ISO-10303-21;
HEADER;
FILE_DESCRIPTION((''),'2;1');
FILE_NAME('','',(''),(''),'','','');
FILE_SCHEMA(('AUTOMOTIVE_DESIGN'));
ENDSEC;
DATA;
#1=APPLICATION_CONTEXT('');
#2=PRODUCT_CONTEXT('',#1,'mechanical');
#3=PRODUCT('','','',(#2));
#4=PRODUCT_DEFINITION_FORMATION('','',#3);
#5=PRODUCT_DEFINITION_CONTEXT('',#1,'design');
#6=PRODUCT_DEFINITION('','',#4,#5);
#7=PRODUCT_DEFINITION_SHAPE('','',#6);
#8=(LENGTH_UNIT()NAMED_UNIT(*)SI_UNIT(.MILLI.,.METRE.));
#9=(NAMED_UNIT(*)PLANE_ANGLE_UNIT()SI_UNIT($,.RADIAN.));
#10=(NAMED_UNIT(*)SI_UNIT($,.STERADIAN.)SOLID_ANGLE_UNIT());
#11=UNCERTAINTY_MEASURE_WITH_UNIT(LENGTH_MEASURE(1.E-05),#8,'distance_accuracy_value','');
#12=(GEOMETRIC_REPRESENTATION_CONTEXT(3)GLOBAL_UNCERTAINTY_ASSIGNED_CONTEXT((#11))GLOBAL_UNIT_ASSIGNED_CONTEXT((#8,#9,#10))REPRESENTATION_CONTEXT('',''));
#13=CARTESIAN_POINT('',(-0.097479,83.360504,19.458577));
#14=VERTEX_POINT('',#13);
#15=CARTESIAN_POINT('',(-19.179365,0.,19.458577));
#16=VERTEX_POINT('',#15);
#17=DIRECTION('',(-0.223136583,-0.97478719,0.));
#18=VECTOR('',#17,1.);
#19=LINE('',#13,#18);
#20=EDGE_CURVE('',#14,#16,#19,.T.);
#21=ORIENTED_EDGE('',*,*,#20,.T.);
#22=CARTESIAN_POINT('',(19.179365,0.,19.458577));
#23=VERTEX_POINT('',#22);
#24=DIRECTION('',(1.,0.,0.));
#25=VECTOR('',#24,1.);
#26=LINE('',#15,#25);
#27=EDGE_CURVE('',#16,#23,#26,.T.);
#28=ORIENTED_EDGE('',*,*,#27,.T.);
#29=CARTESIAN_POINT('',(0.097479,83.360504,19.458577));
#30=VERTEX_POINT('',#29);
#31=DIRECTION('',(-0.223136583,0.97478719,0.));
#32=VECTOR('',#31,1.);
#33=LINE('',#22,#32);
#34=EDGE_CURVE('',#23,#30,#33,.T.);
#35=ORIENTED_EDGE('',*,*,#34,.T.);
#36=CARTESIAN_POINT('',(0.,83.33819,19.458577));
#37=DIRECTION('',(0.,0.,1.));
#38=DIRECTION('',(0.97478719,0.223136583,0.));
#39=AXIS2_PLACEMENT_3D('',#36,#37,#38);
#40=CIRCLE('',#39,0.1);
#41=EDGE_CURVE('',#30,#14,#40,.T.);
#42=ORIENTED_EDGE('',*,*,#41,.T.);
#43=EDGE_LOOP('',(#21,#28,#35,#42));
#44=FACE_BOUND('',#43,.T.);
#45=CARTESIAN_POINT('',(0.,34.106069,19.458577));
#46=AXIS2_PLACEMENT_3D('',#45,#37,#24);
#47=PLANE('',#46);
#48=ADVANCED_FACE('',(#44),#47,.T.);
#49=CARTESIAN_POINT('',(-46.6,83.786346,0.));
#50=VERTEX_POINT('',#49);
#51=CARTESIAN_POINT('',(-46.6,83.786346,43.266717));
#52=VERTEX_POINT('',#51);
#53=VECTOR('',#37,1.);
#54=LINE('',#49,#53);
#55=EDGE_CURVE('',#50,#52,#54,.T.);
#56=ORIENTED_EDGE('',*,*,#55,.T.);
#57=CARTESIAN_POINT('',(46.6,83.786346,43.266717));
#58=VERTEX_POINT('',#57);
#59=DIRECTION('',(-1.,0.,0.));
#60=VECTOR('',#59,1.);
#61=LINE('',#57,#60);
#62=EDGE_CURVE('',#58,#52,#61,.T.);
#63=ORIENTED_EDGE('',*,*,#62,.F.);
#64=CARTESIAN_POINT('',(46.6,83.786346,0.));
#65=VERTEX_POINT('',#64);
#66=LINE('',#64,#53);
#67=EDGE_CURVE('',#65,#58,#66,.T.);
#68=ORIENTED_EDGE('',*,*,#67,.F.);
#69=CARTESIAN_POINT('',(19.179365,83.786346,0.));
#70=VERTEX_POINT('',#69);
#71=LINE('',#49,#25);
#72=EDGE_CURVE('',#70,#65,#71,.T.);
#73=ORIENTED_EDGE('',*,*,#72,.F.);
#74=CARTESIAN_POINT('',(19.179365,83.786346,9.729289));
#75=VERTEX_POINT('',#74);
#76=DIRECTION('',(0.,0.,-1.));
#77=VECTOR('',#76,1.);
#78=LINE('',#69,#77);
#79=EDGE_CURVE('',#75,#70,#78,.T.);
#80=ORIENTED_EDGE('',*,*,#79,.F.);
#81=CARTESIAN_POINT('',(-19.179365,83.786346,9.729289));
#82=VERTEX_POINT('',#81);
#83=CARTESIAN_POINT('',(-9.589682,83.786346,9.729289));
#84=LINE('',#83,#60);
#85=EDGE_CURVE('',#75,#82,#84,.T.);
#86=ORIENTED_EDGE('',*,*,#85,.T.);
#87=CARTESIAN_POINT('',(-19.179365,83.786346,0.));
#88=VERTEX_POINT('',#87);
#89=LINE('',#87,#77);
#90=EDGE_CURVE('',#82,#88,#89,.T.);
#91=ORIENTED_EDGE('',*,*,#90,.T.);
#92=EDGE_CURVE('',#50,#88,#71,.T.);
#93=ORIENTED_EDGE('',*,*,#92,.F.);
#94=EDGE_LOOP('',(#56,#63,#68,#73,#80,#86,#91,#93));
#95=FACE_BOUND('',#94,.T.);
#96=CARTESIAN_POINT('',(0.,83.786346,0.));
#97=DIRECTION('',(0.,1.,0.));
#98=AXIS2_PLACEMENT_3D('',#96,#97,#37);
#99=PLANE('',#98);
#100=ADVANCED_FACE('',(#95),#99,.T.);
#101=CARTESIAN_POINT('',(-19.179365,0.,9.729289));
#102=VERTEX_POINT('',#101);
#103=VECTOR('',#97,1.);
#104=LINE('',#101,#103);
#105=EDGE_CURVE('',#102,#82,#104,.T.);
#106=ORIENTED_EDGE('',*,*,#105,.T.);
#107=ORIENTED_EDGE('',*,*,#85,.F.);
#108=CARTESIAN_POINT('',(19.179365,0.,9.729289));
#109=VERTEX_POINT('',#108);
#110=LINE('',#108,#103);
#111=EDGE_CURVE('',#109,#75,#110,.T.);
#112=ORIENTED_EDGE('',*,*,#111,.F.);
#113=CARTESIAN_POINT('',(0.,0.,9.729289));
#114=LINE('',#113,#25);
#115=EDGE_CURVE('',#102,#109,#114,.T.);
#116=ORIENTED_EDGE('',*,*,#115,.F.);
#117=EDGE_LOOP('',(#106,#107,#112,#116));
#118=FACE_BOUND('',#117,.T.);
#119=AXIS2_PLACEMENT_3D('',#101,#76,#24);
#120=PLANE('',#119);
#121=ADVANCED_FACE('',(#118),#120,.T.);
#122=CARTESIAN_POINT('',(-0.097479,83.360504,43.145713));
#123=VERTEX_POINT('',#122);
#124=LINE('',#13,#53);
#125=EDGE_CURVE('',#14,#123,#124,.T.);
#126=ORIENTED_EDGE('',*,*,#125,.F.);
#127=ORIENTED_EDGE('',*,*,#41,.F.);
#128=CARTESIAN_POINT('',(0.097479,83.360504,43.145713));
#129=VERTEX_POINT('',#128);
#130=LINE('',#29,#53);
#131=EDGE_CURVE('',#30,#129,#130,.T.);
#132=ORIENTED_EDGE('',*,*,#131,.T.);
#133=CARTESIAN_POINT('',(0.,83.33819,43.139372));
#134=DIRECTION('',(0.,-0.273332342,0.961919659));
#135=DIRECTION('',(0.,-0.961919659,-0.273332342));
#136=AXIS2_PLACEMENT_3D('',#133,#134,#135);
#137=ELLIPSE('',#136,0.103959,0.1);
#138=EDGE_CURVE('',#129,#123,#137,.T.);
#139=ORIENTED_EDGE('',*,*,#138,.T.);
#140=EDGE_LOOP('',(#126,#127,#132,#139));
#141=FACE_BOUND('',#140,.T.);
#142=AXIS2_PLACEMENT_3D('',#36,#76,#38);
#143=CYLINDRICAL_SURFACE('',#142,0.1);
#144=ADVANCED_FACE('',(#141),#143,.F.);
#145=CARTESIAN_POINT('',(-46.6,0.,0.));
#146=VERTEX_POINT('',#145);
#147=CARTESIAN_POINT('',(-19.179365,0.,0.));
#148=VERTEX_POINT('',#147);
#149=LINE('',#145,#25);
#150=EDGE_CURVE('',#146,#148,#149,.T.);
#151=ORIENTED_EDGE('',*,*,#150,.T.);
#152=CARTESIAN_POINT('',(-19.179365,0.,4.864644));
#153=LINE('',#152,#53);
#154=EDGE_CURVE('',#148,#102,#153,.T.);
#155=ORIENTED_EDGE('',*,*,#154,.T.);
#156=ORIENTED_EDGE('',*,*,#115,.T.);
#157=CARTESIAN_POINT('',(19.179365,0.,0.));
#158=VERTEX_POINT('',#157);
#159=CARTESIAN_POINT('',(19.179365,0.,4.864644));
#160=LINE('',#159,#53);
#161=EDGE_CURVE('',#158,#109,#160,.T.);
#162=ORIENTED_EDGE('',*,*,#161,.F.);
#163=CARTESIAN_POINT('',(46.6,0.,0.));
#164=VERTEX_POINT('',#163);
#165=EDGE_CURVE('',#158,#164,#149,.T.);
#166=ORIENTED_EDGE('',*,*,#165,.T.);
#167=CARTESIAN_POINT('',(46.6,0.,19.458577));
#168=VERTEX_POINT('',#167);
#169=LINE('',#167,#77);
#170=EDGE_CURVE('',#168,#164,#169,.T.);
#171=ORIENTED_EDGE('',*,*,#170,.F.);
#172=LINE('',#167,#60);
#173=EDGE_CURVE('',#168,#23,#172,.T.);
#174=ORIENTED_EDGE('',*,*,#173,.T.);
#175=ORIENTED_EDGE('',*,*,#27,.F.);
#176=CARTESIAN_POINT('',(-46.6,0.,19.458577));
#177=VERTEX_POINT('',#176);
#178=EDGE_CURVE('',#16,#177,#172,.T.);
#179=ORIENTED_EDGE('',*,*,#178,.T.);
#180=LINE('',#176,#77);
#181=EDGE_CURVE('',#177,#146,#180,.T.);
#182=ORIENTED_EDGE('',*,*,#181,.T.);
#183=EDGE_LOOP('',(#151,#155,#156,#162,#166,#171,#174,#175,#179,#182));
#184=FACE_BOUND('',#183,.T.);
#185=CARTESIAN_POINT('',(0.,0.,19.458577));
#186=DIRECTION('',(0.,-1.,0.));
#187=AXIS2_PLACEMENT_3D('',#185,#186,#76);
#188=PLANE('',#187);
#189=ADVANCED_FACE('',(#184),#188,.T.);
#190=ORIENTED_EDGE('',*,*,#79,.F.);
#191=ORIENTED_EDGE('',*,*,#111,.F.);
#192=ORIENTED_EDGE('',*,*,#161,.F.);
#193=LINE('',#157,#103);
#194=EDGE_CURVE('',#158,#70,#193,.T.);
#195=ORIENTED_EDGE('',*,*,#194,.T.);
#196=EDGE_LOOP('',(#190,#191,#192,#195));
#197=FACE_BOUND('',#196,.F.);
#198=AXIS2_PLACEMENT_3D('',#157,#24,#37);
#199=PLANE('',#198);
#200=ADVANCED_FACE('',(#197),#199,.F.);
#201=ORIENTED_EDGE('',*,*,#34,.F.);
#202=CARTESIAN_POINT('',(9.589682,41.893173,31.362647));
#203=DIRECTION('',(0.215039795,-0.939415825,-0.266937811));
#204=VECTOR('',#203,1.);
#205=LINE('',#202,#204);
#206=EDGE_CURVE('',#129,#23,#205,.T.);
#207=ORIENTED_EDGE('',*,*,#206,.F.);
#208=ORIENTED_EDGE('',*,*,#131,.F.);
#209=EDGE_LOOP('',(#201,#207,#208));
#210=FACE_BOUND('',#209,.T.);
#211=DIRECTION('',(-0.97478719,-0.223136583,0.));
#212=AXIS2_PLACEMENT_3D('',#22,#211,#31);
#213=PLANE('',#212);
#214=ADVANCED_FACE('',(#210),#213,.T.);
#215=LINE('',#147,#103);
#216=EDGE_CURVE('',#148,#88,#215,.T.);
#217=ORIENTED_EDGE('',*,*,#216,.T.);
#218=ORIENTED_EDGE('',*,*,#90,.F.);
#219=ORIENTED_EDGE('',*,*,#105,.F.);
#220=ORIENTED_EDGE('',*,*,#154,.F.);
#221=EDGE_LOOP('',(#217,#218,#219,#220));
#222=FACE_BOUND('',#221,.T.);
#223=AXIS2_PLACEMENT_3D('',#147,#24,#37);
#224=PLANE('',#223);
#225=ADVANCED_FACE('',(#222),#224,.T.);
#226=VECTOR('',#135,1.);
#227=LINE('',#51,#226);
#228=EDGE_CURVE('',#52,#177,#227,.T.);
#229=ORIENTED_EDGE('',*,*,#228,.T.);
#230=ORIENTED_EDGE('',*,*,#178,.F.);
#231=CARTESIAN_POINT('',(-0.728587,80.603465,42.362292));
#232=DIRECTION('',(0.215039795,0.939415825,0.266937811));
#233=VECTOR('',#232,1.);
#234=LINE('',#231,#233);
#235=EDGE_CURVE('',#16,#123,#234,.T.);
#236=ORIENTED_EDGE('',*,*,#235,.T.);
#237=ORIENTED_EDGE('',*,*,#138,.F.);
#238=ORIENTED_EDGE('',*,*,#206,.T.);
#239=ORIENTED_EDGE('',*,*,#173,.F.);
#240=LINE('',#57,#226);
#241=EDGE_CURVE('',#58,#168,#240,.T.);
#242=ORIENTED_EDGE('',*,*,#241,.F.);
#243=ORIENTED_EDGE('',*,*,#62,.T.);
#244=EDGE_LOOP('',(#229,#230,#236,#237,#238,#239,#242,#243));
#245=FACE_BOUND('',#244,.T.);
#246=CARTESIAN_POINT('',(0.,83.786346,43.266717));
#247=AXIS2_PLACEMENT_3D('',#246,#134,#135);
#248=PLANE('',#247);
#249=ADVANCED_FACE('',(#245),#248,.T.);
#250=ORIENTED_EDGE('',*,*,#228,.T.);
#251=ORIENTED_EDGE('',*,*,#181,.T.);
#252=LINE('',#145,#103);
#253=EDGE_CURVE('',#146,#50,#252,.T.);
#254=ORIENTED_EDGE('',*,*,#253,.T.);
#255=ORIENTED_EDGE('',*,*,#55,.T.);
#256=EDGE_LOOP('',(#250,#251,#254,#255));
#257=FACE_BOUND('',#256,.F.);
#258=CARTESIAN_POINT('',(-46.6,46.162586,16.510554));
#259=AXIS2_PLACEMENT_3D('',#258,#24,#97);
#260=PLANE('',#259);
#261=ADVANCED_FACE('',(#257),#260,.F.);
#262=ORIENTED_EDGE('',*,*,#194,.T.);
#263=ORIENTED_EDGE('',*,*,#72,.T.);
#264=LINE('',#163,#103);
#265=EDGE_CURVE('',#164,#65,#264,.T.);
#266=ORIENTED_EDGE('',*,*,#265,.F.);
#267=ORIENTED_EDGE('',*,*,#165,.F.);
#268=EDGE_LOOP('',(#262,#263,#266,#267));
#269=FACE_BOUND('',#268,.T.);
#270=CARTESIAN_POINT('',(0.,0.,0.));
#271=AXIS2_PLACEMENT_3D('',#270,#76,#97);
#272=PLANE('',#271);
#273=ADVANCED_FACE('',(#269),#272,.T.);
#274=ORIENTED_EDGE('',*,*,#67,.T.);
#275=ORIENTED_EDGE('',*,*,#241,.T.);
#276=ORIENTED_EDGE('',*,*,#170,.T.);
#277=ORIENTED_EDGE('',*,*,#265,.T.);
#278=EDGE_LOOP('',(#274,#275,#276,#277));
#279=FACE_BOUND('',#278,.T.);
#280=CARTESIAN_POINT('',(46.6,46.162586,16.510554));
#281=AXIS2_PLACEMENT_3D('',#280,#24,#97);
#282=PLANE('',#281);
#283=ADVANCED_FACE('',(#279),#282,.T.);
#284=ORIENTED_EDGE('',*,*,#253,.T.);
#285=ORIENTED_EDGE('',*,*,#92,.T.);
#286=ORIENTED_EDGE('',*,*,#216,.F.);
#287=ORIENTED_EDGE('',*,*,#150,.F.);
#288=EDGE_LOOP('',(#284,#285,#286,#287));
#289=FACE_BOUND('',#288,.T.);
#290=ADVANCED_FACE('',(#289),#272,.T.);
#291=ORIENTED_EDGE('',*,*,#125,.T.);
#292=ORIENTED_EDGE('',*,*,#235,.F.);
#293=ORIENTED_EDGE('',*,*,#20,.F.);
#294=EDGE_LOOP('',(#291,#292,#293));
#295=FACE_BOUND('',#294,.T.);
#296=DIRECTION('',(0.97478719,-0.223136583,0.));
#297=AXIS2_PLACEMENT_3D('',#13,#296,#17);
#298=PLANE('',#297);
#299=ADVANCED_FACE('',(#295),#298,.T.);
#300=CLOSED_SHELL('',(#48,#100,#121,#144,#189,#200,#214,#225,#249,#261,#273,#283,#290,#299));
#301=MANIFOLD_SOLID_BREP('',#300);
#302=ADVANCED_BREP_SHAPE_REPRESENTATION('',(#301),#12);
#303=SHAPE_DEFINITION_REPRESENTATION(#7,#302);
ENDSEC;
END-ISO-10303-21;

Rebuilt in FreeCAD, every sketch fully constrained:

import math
import FreeCAD as App
import Part
import Sketcher

V = App.Vector
Q = App.Units.Quantity


def add_polygon(sketch, points):
    """Adds a closed chain of lines whose ends are joined by coincident constraints."""
    first, n = sketch.GeometryCount, len(points)
    for a, b in zip(points, points[1:] + points[:1]):
        sketch.addGeometry(Part.LineSegment(App.Vector(*a, 0), App.Vector(*b, 0)), False)
    for i in range(n):
        sketch.addConstraint(Sketcher.Constraint("Coincident", first + i, 2, first + (i + 1) % n, 1))

doc = App.newDocument("Part")
params = doc.addObject("Spreadsheet::Sheet", "Params")
for row, (alias, value) in enumerate([
    ("pad1_length", "93.2 mm"),
    ("sketch3_radius", "0.1 mm"),
], start=1):
    params.set(f"A{row}", alias)
    params.set(f"B{row}", "=" + value)
    params.setAlias(f"B{row}", alias)

body = doc.addObject("PartDesign::Body", "Body")

sketch1 = body.newObject("Sketcher::SketchObject", "Sketch")
sketch1.AttachmentSupport = (doc.getObject("YZ_Plane"), [""])
sketch1.MapMode = "FlatFace"
add_polygon(sketch1, [(0, 19), (0, 0), (84, 0), (84, 43)])
sketch1.addConstraint(Sketcher.Constraint("Vertical", 0))
sketch1.addConstraint(Sketcher.Constraint("Horizontal", 1))
sketch1.addConstraint(Sketcher.Constraint("Vertical", 2))
sketch1.addConstraint(Sketcher.Constraint("Coincident", 0, 2, -1, 1))
sketch1.addConstraint(Sketcher.Constraint("Distance", 3, Q("87.103268 mm")))
sketch1.addConstraint(Sketcher.Constraint("DistanceX", 1, 1, 1, 2, Q("83.786346 mm")))
sketch1.addConstraint(Sketcher.Constraint("DistanceY", 0, 2, 0, 1, Q("19.458577 mm")))
pad1 = body.newObject("PartDesign::Pad", "Pad")
pad1.Profile = sketch1
pad1.setExpression("Length", "Params.pad1_length")
pad1.Midplane = True

sketch2 = body.newObject("Sketcher::SketchObject", "Sketch001")
sketch2.AttachmentSupport = (doc.getObject("XZ_Plane"), [""])
sketch2.MapMode = "FlatFace"
add_polygon(sketch2, [(-19, 10), (-19, 0), (19, 0), (19, 10)])
sketch2.addConstraint(Sketcher.Constraint("Vertical", 0))
sketch2.addConstraint(Sketcher.Constraint("Horizontal", 1))
sketch2.addConstraint(Sketcher.Constraint("Vertical", 2))
sketch2.addConstraint(Sketcher.Constraint("Horizontal", 3))
sketch2.addConstraint(Sketcher.Constraint("Symmetric", 0, 2, 1, 2, -1, 1))
sketch2.addConstraint(Sketcher.Constraint("DistanceX", 1, 1, 1, 2, Q("38.358729 mm")))
sketch2.addConstraint(Sketcher.Constraint("DistanceY", 0, 2, 0, 1, Q("9.729289 mm")))
pocket1 = body.newObject("PartDesign::Pocket", "Pocket")
pocket1.Profile = sketch2
pocket1.Type = "ThroughAll"

sketch3 = body.newObject("Sketcher::SketchObject", "Sketch002")
sketch3.AttachmentSupport = (doc.getObject("XY_Plane"), [""])
sketch3.MapMode = "FlatFace"
sketch3.AttachmentOffset = App.Placement(V(0, 0, 19.458577), App.Rotation())
sketch3.addGeometry(Part.LineSegment(V(-19.18, 0, 0), V(19.18, 0, 0)), False)
sketch3.addGeometry(Part.LineSegment(V(19.18, 0, 0), V(0.1, 83.36, 0)), False)
sketch3.addGeometry(Part.ArcOfCircle(Part.Circle(V(0, 83.34, 0), V(0, 0, 1), 0.1), math.radians(13), math.radians(167)), False)
sketch3.addGeometry(Part.LineSegment(V(-0.1, 83.36, 0), V(-19.18, 0, 0)), False)
sketch3.addConstraint(Sketcher.Constraint("Coincident", 0, 2, 1, 1))
sketch3.addConstraint(Sketcher.Constraint("Tangent", 1, 2, 2, 1))
sketch3.addConstraint(Sketcher.Constraint("Tangent", 2, 2, 3, 1))
sketch3.addConstraint(Sketcher.Constraint("Coincident", 3, 2, 0, 1))
sketch3.addConstraint(Sketcher.Constraint("Horizontal", 0))
sketch3.addConstraint(Sketcher.Constraint("Symmetric", 0, 2, 3, 2, -1, 1))
sketch3.addConstraint(Sketcher.Constraint("PointOnObject", 2, 3, -2))
sketch3.addConstraint(Sketcher.Constraint("Radius", 2, Q("0.1 mm")))
sketch3.addConstraint(Sketcher.Constraint("DistanceX", 0, 1, 0, 2, Q("38.358729 mm")))
sketch3.addConstraint(Sketcher.Constraint("DistanceY", -1, 1, 2, 3, Q("83.33819 mm")))
sketch3.setExpression("Constraints[7]", "Params.sketch3_radius")
pocket2 = body.newObject("PartDesign::Pocket", "Pocket001")
pocket2.Profile = sketch3
pocket2.Type = "ThroughAll"
pocket2.Reversed = True

doc.recompute()
